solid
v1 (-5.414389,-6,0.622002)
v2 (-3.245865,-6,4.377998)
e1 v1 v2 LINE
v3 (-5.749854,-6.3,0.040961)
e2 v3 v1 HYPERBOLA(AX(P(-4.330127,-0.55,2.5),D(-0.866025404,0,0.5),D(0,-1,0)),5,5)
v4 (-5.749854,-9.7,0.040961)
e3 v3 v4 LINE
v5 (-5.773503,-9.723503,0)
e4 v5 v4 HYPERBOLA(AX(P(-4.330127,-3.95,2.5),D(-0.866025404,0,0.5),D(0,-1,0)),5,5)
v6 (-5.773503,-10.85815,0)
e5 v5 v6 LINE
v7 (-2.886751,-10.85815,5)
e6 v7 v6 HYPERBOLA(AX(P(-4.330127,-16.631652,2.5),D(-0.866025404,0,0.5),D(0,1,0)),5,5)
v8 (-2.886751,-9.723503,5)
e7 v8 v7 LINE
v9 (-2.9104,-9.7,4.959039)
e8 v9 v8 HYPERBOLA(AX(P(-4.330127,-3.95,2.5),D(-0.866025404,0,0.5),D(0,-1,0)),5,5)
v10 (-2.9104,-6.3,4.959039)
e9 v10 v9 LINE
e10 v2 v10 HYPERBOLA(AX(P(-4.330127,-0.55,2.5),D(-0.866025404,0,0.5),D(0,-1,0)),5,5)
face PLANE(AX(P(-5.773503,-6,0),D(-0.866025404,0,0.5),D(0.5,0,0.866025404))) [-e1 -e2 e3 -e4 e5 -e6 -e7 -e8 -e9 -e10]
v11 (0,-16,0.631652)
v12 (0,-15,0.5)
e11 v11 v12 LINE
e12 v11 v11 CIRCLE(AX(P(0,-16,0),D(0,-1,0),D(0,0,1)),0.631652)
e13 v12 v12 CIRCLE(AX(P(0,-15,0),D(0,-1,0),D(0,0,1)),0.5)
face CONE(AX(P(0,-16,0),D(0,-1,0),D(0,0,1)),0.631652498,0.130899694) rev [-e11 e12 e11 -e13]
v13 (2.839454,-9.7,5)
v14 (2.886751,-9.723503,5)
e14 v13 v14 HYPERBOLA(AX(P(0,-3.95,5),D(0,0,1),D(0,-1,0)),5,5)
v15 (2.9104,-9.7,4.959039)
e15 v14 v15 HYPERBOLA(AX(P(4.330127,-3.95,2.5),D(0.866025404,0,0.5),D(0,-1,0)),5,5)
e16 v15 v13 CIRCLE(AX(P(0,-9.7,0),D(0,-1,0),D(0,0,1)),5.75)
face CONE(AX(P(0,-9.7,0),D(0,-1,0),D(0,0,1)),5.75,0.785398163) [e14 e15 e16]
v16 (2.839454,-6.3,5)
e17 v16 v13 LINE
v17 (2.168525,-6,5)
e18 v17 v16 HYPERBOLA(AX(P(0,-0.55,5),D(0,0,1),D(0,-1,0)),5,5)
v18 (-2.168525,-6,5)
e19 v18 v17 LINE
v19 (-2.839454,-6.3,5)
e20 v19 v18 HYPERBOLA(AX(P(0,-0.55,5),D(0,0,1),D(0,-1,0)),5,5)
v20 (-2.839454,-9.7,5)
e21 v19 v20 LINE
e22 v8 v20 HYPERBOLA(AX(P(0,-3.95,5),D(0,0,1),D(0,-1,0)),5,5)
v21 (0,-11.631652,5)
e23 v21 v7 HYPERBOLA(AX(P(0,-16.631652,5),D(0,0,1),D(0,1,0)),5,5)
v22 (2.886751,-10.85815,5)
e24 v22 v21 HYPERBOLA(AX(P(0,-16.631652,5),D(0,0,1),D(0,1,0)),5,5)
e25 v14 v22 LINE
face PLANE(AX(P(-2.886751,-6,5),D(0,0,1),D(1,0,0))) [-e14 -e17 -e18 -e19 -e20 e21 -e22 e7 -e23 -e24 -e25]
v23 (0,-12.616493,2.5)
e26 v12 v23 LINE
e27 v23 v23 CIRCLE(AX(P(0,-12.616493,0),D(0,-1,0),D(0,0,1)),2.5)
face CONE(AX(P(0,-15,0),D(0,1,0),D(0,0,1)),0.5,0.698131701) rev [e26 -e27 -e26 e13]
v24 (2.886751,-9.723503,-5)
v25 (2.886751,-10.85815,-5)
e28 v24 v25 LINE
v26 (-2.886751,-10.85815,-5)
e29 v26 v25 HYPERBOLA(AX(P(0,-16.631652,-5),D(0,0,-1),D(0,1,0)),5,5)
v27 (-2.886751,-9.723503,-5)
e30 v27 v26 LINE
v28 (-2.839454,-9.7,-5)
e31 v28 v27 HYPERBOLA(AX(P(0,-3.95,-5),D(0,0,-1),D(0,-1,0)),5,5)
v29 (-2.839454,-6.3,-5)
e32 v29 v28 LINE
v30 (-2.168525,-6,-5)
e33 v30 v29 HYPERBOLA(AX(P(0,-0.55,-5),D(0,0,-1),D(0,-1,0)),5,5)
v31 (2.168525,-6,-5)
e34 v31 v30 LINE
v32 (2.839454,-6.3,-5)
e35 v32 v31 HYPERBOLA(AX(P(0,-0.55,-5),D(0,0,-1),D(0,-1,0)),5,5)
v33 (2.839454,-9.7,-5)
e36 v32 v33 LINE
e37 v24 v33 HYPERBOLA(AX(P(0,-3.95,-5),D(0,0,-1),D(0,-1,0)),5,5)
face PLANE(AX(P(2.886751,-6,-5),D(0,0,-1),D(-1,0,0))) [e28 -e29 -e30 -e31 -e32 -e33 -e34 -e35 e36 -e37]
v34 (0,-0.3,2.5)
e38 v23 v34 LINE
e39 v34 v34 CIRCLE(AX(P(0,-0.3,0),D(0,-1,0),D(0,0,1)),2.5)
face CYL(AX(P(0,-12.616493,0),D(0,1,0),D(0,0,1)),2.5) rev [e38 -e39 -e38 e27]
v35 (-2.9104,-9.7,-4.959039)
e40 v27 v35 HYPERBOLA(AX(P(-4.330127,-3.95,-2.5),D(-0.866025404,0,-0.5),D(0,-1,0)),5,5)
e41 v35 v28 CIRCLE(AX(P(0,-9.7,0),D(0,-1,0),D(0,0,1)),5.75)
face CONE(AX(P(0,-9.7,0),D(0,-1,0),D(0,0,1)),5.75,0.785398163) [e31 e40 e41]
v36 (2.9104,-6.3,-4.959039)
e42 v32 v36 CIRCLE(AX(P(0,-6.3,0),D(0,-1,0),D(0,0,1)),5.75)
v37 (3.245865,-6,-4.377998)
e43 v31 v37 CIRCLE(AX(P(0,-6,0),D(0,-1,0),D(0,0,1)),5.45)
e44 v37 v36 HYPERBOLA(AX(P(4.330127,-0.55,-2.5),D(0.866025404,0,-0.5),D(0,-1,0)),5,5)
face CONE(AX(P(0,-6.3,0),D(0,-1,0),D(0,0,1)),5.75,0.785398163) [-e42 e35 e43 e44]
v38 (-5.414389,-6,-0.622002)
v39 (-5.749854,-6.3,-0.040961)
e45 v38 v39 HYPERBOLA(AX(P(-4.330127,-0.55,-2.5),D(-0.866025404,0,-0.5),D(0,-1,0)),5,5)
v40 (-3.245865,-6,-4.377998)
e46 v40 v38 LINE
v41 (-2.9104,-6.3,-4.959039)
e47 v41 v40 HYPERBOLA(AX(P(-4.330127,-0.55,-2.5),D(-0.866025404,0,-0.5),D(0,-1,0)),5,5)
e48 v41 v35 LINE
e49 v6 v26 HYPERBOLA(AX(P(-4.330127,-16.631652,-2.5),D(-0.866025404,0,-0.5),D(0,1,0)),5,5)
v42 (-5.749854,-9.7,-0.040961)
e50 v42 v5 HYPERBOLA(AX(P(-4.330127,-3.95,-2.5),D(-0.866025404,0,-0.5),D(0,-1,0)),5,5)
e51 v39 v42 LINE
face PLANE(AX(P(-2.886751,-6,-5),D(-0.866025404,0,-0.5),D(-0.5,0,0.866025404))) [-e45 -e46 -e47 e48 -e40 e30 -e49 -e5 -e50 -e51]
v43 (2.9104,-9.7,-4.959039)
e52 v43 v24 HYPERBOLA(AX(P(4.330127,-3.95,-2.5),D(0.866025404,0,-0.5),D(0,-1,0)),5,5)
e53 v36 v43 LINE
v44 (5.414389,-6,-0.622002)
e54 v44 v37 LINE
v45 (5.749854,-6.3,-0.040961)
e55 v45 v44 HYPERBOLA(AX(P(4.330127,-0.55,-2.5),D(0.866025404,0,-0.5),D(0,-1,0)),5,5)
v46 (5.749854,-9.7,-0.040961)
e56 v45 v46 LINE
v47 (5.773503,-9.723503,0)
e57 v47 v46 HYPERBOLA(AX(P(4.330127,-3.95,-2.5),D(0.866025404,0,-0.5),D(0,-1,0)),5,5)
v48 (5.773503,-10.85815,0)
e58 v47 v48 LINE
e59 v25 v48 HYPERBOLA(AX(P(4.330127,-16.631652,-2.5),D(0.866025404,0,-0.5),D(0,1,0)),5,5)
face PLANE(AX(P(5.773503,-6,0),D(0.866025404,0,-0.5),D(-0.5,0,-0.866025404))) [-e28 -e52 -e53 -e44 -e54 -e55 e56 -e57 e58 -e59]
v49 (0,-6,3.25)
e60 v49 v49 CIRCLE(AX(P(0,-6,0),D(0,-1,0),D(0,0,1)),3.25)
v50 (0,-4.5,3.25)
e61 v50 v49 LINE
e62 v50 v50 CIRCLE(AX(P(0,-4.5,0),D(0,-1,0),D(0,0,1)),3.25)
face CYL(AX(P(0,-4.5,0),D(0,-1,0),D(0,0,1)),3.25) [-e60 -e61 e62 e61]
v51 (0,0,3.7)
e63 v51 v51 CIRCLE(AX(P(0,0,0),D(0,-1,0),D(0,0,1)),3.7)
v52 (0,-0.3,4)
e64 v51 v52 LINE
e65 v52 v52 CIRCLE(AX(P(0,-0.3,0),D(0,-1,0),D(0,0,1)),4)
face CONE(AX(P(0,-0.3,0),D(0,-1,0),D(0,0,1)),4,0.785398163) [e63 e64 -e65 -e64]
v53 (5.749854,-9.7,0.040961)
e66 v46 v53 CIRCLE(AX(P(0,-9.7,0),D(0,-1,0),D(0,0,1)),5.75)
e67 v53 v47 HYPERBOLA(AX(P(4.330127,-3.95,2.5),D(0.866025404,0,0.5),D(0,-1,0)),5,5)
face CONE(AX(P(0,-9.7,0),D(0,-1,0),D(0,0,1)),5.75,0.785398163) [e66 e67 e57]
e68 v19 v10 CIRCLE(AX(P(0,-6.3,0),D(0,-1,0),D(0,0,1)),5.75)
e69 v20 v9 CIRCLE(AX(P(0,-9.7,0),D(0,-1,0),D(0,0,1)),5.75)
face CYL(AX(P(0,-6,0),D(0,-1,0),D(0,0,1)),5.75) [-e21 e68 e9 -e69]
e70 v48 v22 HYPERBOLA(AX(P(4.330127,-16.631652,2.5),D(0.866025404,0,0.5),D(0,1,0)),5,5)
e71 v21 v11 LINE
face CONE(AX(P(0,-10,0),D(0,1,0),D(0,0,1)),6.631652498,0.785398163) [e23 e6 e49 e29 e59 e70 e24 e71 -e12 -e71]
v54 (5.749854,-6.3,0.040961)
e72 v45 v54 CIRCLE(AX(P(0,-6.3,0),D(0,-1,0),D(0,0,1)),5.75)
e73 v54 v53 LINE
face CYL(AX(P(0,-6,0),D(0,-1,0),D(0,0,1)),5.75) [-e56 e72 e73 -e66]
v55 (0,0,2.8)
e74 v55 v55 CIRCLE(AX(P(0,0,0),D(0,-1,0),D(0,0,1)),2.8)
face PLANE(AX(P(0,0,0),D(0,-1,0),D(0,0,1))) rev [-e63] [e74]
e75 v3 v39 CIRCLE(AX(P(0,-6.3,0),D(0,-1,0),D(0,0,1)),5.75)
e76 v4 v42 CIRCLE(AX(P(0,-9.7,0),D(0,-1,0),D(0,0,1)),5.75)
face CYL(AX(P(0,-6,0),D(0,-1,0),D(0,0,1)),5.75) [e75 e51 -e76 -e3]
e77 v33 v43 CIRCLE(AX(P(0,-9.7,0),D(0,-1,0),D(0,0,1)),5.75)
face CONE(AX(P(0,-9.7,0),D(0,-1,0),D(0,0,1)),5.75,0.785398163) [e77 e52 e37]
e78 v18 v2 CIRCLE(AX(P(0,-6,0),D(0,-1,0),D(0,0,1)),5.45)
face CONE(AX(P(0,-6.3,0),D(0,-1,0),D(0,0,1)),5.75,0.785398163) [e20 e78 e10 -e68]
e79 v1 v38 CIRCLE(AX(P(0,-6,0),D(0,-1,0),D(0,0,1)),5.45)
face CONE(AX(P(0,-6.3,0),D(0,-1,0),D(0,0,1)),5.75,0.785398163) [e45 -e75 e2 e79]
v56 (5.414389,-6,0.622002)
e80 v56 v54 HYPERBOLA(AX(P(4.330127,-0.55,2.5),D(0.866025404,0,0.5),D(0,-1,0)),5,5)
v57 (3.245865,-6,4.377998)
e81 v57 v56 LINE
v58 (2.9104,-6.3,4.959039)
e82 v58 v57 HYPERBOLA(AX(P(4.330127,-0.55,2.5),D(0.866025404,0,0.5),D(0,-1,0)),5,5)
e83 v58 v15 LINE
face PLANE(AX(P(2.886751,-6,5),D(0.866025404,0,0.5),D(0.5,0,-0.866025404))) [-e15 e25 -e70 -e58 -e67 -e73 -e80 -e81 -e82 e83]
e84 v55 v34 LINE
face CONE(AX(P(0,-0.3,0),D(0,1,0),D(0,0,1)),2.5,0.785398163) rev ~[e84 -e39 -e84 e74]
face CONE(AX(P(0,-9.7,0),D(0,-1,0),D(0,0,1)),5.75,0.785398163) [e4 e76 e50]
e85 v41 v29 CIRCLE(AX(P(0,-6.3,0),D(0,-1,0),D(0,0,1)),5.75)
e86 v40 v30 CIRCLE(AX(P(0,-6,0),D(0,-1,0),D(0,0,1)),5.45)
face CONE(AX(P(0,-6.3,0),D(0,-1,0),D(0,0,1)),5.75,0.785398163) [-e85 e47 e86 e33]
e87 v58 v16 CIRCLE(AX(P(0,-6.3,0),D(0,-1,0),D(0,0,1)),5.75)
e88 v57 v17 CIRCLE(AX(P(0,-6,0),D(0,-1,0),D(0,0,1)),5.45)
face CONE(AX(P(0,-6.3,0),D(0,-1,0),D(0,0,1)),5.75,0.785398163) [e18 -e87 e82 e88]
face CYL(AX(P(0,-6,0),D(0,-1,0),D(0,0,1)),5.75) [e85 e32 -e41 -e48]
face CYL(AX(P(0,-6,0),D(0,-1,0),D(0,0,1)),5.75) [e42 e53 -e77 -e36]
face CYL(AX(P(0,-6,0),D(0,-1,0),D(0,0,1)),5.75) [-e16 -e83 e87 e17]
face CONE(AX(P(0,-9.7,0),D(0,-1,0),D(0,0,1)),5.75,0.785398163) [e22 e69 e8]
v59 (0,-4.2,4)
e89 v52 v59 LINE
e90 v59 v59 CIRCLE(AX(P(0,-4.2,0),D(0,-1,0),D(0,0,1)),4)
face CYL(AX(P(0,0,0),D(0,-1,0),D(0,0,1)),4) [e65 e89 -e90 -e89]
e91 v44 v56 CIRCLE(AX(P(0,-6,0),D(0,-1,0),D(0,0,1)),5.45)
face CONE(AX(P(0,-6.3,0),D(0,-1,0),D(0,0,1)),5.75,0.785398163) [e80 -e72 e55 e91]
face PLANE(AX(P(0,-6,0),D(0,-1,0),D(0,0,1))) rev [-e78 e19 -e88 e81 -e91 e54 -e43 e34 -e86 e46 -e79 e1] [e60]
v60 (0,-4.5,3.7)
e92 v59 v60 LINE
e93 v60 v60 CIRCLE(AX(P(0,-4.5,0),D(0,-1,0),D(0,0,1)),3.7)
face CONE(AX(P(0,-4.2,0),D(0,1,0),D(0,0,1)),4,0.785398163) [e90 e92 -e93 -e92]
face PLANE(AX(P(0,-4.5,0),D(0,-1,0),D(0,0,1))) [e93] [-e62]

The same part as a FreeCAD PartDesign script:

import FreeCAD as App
import Part
import Sketcher
Q = App.Units.Quantity


def edges_at(feature, points):
    """Names of the edges that pass closest to the given points."""
    edges = feature.Shape.Edges
    near = lambda p: min(range(len(edges)), key=lambda i: edges[i].distToShape(Part.Vertex(*p))[0])
    return sorted({f"Edge{near(p) + 1}" for p in points})

doc = App.newDocument("Part")
params = doc.addObject("Spreadsheet::Sheet", "Params")
for row, (alias, value) in enumerate([
    ("sketch1_height", "4 mm"),
    ("sketch1_width", "1.5 mm"),
    ("sketch1_width2", "2.5 mm"),
    ("sketch1_height2", "4.5 mm"),
    ("sketch1_width3", "0.75 mm"),
    ("revolution_angle", "360 deg"),
    ("chamfer_size", "0.3 mm"),
], start=1):
    params.set(f"A{row}", alias)
    params.set(f"B{row}", "=" + value)
    params.setAlias(f"B{row}", alias)

body = doc.addObject("PartDesign::Body", "Body")

# Sketch on XY plane
sketch1 = doc.addObject("Sketcher::SketchObject", "Sketch")
body.addObject(sketch1)
sketch1.AttachmentSupport = (doc.XY_Plane, [""])
sketch1.MapMode = "FlatFace"
sketch1.addGeometry(Part.LineSegment(App.Vector(4, 0, 0), App.Vector(2.5, 0, 0)), False)
sketch1.addGeometry(Part.LineSegment(App.Vector(2.5, 0, 0), App.Vector(2.5, -12.6, 0)), False)
sketch1.addGeometry(Part.LineSegment(App.Vector(2.5, -12.6, 0), App.Vector(0.5, -15, 0)), False)
sketch1.addGeometry(Part.LineSegment(App.Vector(0.5, -15, 0), App.Vector(0.6, -16, 0)), False)
sketch1.addGeometry(Part.LineSegment(App.Vector(0.6, -16, 0), App.Vector(6.6, -10, 0)), False)
sketch1.addGeometry(Part.LineSegment(App.Vector(6.6, -10, 0), App.Vector(5.8, -10, 0)), False)
sketch1.addGeometry(Part.LineSegment(App.Vector(5.8, -10, 0), App.Vector(5.8, -6, 0)), False)
sketch1.addGeometry(Part.LineSegment(App.Vector(5.8, -6, 0), App.Vector(3.2, -6, 0)), False)
sketch1.addGeometry(Part.LineSegment(App.Vector(3.2, -6, 0), App.Vector(3.2, -4.5, 0)), False)
sketch1.addGeometry(Part.LineSegment(App.Vector(3.2, -4.5, 0), App.Vector(4, -4.5, 0)), False)
sketch1.addGeometry(Part.LineSegment(App.Vector(4, -4.5, 0), App.Vector(4, 0, 0)), False)
sketch1.addConstraint(Sketcher.Constraint("Coincident", 0, 2, 1, 1))
sketch1.addConstraint(Sketcher.Constraint("Coincident", 1, 2, 2, 1))
sketch1.addConstraint(Sketcher.Constraint("Coincident", 2, 2, 3, 1))
sketch1.addConstraint(Sketcher.Constraint("Coincident", 3, 2, 4, 1))
sketch1.addConstraint(Sketcher.Constraint("Coincident", 4, 2, 5, 1))
sketch1.addConstraint(Sketcher.Constraint("Coincident", 5, 2, 6, 1))
sketch1.addConstraint(Sketcher.Constraint("Coincident", 6, 2, 7, 1))
sketch1.addConstraint(Sketcher.Constraint("Coincident", 7, 2, 8, 1))
sketch1.addConstraint(Sketcher.Constraint("Coincident", 8, 2, 9, 1))
sketch1.addConstraint(Sketcher.Constraint("Coincident", 9, 2, 10, 1))
sketch1.addConstraint(Sketcher.Constraint("Coincident", 10, 2, 0, 1))
sketch1.addConstraint(Sketcher.Constraint("Horizontal", 0))
sketch1.addConstraint(Sketcher.Constraint("Vertical", 1))
sketch1.addConstraint(Sketcher.Constraint("Horizontal", 5))
sketch1.addConstraint(Sketcher.Constraint("Vertical", 6))
sketch1.addConstraint(Sketcher.Constraint("Horizontal", 7))
sketch1.addConstraint(Sketcher.Constraint("Vertical", 8))
sketch1.addConstraint(Sketcher.Constraint("Horizontal", 9))
sketch1.addConstraint(Sketcher.Constraint("Vertical", 10))
sketch1.addConstraint(Sketcher.Constraint("PointOnObject", 0, 2, -1))
sketch1.addConstraint(Sketcher.Constraint("Equal", 0, 8))
sketch1.addConstraint(Sketcher.Constraint("DistanceY", 6, 1, 6, 2, 4.0))
sketch1.addConstraint(Sketcher.Constraint("Angle", 2, Q("-130 deg")))
sketch1.addConstraint(Sketcher.Constraint("Angle", 4, Q("45 deg")))
sketch1.addConstraint(Sketcher.Constraint("DistanceX", 0, 2, 0, 1, 1.5))
sketch1.addConstraint(Sketcher.Constraint("DistanceX", 7, 2, 7, 1, 2.5))
sketch1.addConstraint(Sketcher.Constraint("DistanceY", 10, 1, 10, 2, 4.5))
sketch1.addConstraint(Sketcher.Constraint("DistanceY", 2, 2, -1, 1, 15.0))
sketch1.addConstraint(Sketcher.Constraint("DistanceY", 3, 2, -1, 1, 16.0))
sketch1.addConstraint(Sketcher.Constraint("DistanceX", -1, 1, 9, 2, 4.0))
sketch1.addConstraint(Sketcher.Constraint("Angle", 3, Q("-82.5 deg")))
sketch1.addConstraint(Sketcher.Constraint("DistanceX", 2, 2, 1, 2, 2.0))
sketch1.addConstraint(Sketcher.Constraint("DistanceX", 9, 1, 9, 2, 0.75))
sketch1.setExpression("Constraints[21]", "Params.sketch1_height")
sketch1.setExpression("Constraints[24]", "Params.sketch1_width")
sketch1.setExpression("Constraints[25]", "Params.sketch1_width2")
sketch1.setExpression("Constraints[26]", "Params.sketch1_height2")
sketch1.setExpression("Constraints[32]", "Params.sketch1_width3")
revolution = doc.addObject("PartDesign::Revolution", "Revolution")
body.addObject(revolution)
revolution.Profile = sketch1
revolution.ReferenceAxis = (sketch1, ["V_Axis"])
revolution.setExpression("Angle", "Params.revolution_angle")
doc.recompute()

chamfer = doc.addObject("PartDesign::Chamfer", "Chamfer")
body.addObject(chamfer)
chamfer.Base = (revolution, edges_at(revolution, [
    (0, -10, -5.75),
    (0, -6, -5.75),
    (0, -4.5, -4),
    (0, 0, -4),
    (0, 0, -2.5),
]))
chamfer.setExpression("Size", "Params.chamfer_size")

# Sketch on XZ plane
sketch2 = doc.addObject("Sketcher::SketchObject", "Sketch001")
body.addObject(sketch2)
sketch2.AttachmentSupport = (doc.XZ_Plane, [""])
sketch2.MapMode = "FlatFace"
sketch2.AttachmentOffset = App.Placement(App.Vector(0, 0, 6), App.Rotation())
sketch2.addGeometry(Part.LineSegment(App.Vector(-10, -10, 0), App.Vector(-10, 10, 0)), False)
sketch2.addGeometry(Part.LineSegment(App.Vector(-10, 10, 0), App.Vector(10, 10, 0)), False)
sketch2.addGeometry(Part.LineSegment(App.Vector(10, 10, 0), App.Vector(10, -10, 0)), False)
sketch2.addGeometry(Part.LineSegment(App.Vector(10, -10, 0), App.Vector(-10, -10, 0)), False)
sketch2.addGeometry(Part.LineSegment(App.Vector(3, -5, 0), App.Vector(6, 0, 0)), False)
sketch2.addGeometry(Part.LineSegment(App.Vector(6, 0, 0), App.Vector(3, 5, 0)), False)
sketch2.addGeometry(Part.LineSegment(App.Vector(3, 5, 0), App.Vector(-3, 5, 0)), False)
sketch2.addGeometry(Part.LineSegment(App.Vector(-3, 5, 0), App.Vector(-6, 0, 0)), False)
sketch2.addGeometry(Part.LineSegment(App.Vector(-6, 0, 0), App.Vector(-3, -5, 0)), False)
sketch2.addGeometry(Part.LineSegment(App.Vector(-3, -5, 0), App.Vector(3, -5, 0)), False)
sketch2.addConstraint(Sketcher.Constraint("Coincident", 0, 2, 1, 1))
sketch2.addConstraint(Sketcher.Constraint("Coincident", 1, 2, 2, 1))
sketch2.addConstraint(Sketcher.Constraint("Coincident", 2, 2, 3, 1))
sketch2.addConstraint(Sketcher.Constraint("Coincident", 3, 2, 0, 1))
sketch2.addConstraint(Sketcher.Constraint("Coincident", 4, 2, 5, 1))
sketch2.addConstraint(Sketcher.Constraint("Coincident", 5, 2, 6, 1))
sketch2.addConstraint(Sketcher.Constraint("Coincident", 6, 2, 7, 1))
sketch2.addConstraint(Sketcher.Constraint("Coincident", 7, 2, 8, 1))
sketch2.addConstraint(Sketcher.Constraint("Coincident", 8, 2, 9, 1))
sketch2.addConstraint(Sketcher.Constraint("Coincident", 9, 2, 4, 1))
sketch2.addConstraint(Sketcher.Constraint("Vertical", 0))
sketch2.addConstraint(Sketcher.Constraint("Horizontal", 1))
sketch2.addConstraint(Sketcher.Constraint("Vertical", 2))
sketch2.addConstraint(Sketcher.Constraint("Horizontal", 3))
sketch2.addConstraint(Sketcher.Constraint("Horizontal", 6))
sketch2.addConstraint(Sketcher.Constraint("Horizontal", 9))
sketch2.addConstraint(Sketcher.Constraint("Symmetric", 0, 2, 2, 2, -1, 1))
sketch2.addConstraint(Sketcher.Constraint("Symmetric", 4, 2, 7, 2, -1, 1))
sketch2.addConstraint(Sketcher.Constraint("Symmetric", 5, 2, 8, 2, -1, 1))
sketch2.addConstraint(Sketcher.Constraint("PointOnObject", 4, 2, -1))
sketch2.addConstraint(Sketcher.Constraint("Parallel", 4, 7))
sketch2.addConstraint(Sketcher.Constraint("Vertical", 6, 2, 8, 2))
sketch2.addConstraint(Sketcher.Constraint("Equal", 3, 0))
sketch2.addConstraint(Sketcher.Constraint("Angle", 4, Q("60 deg")))
sketch2.addConstraint(Sketcher.Constraint("DistanceY", -1, 1, 5, 2, 5.0))
sketch2.addConstraint(Sketcher.Constraint("DistanceX", 1, 1, 1, 2, 20.194))
sketch2.addConstraint(Sketcher.Constraint("DistanceX", 6, 2, 6, 1, 5.773503))
pocket1 = doc.addObject("PartDesign::Pocket", "Pocket")
body.addObject(pocket1)
pocket1.Profile = sketch2
pocket1.Type = "ThroughAll"
pocket1.Reversed = True

doc.recompute()
